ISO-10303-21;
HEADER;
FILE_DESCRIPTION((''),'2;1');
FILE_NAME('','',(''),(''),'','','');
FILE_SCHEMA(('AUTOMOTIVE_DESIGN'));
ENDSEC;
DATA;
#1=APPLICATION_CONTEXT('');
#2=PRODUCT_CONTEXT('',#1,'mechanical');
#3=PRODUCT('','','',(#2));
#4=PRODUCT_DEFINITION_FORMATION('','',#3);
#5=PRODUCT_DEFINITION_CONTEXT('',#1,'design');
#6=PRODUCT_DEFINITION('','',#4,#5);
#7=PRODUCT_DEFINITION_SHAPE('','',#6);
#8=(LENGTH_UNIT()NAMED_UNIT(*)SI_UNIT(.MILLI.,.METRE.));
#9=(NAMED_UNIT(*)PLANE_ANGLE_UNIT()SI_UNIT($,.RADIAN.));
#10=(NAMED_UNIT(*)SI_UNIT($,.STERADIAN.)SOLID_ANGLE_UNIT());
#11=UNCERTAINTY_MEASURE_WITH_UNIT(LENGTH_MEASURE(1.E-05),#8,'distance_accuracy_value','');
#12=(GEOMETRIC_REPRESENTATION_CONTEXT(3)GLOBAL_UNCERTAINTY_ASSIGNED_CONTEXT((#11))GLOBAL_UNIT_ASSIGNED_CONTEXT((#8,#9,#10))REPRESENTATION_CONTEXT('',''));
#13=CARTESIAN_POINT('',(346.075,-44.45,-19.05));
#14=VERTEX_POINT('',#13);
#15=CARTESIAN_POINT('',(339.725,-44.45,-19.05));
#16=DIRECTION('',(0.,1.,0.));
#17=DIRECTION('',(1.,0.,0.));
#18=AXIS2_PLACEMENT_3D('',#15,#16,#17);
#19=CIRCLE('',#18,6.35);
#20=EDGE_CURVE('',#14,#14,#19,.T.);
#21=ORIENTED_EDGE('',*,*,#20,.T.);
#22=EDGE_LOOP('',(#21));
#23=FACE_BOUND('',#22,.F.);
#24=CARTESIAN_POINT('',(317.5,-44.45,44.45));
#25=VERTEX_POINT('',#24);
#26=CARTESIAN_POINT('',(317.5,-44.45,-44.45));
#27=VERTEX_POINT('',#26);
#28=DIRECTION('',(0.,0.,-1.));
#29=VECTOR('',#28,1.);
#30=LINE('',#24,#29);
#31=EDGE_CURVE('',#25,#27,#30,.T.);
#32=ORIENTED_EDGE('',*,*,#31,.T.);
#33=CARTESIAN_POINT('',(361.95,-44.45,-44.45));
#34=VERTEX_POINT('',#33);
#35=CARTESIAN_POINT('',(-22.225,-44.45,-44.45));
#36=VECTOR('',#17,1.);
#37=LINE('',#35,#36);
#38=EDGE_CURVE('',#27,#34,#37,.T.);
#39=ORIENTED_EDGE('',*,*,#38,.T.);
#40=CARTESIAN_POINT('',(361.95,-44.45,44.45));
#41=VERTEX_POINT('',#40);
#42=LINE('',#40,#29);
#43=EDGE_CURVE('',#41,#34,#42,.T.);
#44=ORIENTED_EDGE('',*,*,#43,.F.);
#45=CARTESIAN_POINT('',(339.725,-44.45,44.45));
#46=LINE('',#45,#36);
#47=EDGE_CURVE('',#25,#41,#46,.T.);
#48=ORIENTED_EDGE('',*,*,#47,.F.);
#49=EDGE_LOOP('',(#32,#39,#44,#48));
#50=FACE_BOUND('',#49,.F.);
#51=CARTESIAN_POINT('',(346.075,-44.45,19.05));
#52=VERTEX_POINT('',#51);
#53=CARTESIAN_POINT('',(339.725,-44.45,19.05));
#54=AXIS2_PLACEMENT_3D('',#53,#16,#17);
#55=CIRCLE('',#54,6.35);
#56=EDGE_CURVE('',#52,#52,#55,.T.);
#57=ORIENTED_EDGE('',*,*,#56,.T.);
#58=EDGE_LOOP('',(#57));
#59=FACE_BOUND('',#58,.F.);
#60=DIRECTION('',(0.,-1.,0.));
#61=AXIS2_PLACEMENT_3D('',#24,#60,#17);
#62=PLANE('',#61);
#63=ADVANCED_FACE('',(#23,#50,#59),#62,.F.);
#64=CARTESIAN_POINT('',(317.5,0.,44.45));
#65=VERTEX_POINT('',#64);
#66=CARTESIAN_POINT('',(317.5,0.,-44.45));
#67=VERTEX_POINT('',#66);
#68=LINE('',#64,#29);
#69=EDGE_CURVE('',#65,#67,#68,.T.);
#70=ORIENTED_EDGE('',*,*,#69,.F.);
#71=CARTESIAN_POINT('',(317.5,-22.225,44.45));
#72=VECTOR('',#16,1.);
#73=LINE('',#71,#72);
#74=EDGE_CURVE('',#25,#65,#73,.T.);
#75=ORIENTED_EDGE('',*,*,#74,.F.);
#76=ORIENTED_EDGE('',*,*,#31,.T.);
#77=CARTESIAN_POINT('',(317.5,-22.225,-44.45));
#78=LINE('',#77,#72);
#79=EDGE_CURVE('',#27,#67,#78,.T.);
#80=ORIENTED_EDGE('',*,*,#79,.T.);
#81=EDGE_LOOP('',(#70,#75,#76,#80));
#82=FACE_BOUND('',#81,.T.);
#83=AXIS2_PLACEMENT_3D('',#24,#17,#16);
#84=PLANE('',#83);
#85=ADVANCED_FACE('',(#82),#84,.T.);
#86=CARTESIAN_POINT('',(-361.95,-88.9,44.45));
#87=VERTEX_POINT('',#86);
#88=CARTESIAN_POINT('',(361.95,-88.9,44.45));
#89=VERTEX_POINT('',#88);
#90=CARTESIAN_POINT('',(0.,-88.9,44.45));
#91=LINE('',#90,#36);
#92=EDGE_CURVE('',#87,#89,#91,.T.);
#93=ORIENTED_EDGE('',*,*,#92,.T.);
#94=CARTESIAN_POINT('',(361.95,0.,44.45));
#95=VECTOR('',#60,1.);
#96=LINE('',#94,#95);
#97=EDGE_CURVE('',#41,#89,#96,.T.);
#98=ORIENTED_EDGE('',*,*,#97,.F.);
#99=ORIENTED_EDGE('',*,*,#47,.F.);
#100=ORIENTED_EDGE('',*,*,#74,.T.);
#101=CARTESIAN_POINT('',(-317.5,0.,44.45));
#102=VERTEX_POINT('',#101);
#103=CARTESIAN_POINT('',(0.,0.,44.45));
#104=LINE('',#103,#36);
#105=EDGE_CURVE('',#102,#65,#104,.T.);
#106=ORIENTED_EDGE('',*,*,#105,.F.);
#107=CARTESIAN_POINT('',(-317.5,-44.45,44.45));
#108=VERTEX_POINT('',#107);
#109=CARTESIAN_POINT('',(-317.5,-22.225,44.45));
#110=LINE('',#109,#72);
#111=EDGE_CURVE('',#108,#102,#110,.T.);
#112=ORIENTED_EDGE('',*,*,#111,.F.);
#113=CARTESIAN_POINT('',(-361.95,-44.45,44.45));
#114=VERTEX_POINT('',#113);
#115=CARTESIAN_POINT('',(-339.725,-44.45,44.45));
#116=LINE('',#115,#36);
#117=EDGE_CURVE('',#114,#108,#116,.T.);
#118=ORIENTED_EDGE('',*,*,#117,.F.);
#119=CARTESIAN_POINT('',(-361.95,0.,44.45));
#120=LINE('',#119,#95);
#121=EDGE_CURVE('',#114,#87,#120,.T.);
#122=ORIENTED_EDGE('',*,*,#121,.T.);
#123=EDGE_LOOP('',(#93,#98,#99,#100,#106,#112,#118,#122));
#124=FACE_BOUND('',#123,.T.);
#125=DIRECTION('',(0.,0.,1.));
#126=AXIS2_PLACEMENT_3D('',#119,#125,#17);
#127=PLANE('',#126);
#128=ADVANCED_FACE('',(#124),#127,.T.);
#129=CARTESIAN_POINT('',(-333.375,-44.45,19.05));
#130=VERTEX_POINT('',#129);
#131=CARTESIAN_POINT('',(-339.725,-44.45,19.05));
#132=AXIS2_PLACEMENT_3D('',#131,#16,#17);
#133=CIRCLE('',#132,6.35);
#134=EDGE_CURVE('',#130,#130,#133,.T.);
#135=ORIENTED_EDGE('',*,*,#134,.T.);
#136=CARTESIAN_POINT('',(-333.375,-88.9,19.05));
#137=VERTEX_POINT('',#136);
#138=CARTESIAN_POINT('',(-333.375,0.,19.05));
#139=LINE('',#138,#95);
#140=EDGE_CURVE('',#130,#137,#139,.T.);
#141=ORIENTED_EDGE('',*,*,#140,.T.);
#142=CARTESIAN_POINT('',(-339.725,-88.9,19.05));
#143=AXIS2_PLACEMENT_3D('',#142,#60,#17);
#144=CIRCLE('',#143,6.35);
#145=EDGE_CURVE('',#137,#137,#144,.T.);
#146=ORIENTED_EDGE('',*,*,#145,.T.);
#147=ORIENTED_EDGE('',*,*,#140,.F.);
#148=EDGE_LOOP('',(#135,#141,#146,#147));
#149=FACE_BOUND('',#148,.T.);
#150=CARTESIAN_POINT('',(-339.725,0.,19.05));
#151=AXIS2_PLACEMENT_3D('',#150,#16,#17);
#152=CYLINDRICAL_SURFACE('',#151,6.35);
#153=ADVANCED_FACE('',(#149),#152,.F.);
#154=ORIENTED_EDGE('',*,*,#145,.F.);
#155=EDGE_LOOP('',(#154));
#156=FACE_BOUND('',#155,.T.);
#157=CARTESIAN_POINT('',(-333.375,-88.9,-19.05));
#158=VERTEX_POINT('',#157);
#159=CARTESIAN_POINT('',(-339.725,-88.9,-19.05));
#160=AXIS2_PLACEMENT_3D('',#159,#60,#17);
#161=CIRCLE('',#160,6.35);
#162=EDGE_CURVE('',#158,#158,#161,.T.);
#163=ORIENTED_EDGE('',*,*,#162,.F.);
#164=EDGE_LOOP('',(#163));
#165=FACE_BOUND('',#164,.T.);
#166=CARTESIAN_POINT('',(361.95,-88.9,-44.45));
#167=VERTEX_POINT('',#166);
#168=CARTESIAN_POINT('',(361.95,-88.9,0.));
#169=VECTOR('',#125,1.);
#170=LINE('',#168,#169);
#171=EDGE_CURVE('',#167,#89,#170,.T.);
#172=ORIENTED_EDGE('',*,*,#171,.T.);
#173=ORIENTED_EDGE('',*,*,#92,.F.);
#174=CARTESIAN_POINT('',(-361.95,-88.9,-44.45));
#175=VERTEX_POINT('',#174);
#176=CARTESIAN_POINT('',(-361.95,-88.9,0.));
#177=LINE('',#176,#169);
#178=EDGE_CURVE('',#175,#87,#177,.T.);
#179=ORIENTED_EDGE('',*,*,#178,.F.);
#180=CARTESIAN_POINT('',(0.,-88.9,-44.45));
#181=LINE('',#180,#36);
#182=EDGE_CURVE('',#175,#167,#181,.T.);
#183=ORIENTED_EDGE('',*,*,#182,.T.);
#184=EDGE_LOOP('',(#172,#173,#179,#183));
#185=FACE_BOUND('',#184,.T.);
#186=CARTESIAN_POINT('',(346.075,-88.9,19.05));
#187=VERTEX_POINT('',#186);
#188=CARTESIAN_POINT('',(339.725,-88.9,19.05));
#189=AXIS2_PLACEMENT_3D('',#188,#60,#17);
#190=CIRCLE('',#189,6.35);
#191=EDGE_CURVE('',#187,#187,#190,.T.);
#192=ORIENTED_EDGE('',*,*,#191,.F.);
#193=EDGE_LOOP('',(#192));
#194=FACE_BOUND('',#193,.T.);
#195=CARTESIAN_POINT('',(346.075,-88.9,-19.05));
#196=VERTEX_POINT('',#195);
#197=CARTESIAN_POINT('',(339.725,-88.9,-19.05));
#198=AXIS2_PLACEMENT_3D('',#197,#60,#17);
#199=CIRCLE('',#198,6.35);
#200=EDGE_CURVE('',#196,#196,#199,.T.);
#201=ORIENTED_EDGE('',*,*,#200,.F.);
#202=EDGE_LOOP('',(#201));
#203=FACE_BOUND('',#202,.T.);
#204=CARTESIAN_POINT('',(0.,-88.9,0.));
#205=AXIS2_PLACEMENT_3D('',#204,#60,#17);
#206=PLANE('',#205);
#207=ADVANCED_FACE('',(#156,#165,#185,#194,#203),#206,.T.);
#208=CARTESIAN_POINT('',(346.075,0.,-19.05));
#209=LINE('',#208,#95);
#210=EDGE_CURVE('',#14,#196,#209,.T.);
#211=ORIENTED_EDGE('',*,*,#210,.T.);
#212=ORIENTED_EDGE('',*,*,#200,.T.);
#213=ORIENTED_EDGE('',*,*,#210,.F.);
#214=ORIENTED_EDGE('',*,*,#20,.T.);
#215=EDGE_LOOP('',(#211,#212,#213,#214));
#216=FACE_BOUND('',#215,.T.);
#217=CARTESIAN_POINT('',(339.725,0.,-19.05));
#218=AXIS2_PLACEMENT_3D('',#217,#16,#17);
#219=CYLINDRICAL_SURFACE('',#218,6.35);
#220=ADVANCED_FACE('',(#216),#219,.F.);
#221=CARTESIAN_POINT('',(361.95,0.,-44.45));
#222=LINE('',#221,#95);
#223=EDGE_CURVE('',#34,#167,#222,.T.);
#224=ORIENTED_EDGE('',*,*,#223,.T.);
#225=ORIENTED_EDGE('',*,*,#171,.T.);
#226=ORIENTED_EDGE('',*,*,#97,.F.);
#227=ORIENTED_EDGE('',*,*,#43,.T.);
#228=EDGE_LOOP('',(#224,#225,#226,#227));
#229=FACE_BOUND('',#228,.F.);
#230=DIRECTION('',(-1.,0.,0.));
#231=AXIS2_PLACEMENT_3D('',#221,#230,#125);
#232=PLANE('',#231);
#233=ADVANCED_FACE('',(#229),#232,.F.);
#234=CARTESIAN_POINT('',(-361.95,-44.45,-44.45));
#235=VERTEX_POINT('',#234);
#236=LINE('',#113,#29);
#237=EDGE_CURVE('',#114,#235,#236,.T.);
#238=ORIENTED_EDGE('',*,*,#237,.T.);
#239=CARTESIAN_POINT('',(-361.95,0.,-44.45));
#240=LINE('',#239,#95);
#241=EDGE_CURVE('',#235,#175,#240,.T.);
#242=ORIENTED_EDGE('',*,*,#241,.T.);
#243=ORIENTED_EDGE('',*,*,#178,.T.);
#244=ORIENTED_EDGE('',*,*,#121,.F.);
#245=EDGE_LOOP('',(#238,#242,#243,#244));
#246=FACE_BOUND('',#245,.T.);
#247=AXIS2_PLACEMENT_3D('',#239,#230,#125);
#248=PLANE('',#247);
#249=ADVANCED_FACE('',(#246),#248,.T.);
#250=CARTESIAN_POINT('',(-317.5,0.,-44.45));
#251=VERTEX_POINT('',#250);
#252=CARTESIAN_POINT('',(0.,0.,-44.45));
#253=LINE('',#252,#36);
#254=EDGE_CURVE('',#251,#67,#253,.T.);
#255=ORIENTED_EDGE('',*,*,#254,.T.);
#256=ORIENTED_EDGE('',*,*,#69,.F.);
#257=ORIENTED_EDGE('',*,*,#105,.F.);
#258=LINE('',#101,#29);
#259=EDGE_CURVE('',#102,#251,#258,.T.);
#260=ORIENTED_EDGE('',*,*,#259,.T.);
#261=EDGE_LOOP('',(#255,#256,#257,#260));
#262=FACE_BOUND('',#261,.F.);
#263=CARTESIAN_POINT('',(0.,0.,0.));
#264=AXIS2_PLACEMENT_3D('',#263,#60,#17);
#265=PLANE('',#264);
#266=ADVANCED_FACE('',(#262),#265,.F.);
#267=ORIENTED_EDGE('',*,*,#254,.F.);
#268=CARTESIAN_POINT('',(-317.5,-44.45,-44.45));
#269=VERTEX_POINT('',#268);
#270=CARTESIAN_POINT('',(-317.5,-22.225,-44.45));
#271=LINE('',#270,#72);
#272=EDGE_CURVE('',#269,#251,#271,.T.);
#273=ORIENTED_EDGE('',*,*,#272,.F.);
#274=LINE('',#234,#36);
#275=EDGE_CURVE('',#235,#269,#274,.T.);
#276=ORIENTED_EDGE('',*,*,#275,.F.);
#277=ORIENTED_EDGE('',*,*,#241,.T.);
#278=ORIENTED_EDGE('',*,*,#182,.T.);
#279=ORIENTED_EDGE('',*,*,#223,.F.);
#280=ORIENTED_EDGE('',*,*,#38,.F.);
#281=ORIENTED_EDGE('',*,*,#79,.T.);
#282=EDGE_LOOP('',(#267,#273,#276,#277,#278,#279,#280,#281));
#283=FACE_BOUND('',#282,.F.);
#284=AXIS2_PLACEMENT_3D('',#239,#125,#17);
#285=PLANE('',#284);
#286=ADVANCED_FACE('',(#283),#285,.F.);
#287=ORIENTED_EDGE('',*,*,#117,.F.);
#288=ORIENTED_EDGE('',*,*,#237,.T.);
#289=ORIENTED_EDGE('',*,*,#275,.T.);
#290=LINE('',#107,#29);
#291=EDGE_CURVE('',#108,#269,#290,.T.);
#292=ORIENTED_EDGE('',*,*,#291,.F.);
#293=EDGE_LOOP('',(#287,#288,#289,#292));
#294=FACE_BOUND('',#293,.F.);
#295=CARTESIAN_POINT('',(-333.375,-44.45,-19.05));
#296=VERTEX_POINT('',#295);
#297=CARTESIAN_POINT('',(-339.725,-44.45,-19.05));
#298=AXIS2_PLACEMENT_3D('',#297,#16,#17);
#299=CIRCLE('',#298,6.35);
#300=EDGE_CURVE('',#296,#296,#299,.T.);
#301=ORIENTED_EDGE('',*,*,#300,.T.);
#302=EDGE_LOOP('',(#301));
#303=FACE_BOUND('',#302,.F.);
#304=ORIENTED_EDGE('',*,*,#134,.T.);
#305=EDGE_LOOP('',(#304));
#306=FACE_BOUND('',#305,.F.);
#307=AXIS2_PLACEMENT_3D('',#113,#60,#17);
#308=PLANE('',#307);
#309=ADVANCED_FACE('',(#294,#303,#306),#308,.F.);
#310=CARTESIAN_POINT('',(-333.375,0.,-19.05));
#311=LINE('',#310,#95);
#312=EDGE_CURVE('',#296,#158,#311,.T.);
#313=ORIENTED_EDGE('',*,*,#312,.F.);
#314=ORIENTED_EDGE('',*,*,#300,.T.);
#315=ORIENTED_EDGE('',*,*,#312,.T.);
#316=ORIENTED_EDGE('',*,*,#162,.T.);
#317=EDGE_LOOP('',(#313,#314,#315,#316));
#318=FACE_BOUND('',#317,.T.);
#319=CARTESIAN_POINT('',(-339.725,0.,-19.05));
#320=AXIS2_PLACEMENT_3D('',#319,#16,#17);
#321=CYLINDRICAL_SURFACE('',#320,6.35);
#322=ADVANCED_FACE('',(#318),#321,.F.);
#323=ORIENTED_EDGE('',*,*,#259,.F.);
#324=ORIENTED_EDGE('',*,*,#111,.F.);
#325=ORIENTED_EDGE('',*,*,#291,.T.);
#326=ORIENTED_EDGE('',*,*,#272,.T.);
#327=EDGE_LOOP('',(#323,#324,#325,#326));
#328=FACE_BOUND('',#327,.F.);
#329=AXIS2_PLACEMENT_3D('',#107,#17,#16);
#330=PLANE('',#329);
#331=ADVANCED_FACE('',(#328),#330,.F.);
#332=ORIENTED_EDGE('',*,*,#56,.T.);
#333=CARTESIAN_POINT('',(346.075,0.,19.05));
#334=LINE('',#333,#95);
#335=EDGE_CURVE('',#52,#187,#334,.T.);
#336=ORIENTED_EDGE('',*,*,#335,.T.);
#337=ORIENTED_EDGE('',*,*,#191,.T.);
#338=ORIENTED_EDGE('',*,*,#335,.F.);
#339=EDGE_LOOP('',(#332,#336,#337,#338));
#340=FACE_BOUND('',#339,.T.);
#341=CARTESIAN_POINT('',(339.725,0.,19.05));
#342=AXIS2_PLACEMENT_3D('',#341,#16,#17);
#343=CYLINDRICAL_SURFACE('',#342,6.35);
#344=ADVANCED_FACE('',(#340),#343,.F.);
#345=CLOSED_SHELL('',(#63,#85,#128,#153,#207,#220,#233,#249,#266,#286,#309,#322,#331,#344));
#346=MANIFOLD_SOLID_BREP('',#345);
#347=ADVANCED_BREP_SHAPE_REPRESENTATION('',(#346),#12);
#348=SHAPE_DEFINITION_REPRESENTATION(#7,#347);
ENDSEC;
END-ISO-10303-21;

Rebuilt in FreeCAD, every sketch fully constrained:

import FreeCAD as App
import Part
import Sketcher
Q = App.Units.Quantity


def add_polygon(sketch, points):
    """Adds a closed chain of lines whose ends are joined by coincident constraints."""
    first, n = sketch.GeometryCount, len(points)
    for a, b in zip(points, points[1:] + points[:1]):
        sketch.addGeometry(Part.LineSegment(App.Vector(*a, 0), App.Vector(*b, 0)), False)
    for i in range(n):
        sketch.addConstraint(Sketcher.Constraint("Coincident", first + i, 2, first + (i + 1) % n, 1))

doc = App.newDocument("Part")
body = doc.addObject("PartDesign::Body", "Body")

# Sketch on XZ plane
sketch1 = body.newObject("Sketcher::SketchObject", "Sketch")
sketch1.AttachmentSupport = (doc.getObject("XZ_Plane"), [""])
sketch1.MapMode = "FlatFace"
add_polygon(sketch1, [(-362, 44), (-362, -44), (362, -44), (362, 44)])  # lines 0-3
sketch1.addGeometry(Part.Circle(App.Vector(-340, -19, 0), App.Vector(0, 0, 1), 6), False)  # 4
sketch1.addGeometry(Part.Circle(App.Vector(340, -19, 0), App.Vector(0, 0, 1), 6), False)  # 5
sketch1.addGeometry(Part.Circle(App.Vector(-340, 19, 0), App.Vector(0, 0, 1), 6), False)  # 6
sketch1.addGeometry(Part.Circle(App.Vector(340, 19, 0), App.Vector(0, 0, 1), 6), False)  # 7
sketch1.addConstraint(Sketcher.Constraint("Vertical", 0))
sketch1.addConstraint(Sketcher.Constraint("Horizontal", 1))
sketch1.addConstraint(Sketcher.Constraint("Vertical", 2))
sketch1.addConstraint(Sketcher.Constraint("Horizontal", 3))
sketch1.addConstraint(Sketcher.Constraint("Equal", 4, 5))
sketch1.addConstraint(Sketcher.Constraint("Equal", 5, 6))
sketch1.addConstraint(Sketcher.Constraint("Equal", 6, 7))
sketch1.addConstraint(Sketcher.Constraint("Symmetric", 5, 3, 6, 3, -1, 1))
sketch1.addConstraint(Sketcher.Constraint("Symmetric", 4, 3, 7, 3, -1, 1))
sketch1.addConstraint(Sketcher.Constraint("Symmetric", 0, 2, 2, 2, -1, 1))
sketch1.addConstraint(Sketcher.Constraint("Symmetric", 4, 3, 5, 3, -2))
sketch1.addConstraint(Sketcher.Constraint("Diameter", 4, Q("0.5 in")))
sketch1.addConstraint(Sketcher.Constraint("DistanceX", 1, 1, 1, 2, Q("28.5 in")))
sketch1.addConstraint(Sketcher.Constraint("DistanceY", 0, 2, 0, 1, Q("3.5 in")))
sketch1.addConstraint(Sketcher.Constraint("DistanceY", 0, 2, 4, 3, Q("1 in")))
sketch1.addConstraint(Sketcher.Constraint("DistanceX", 4, 3, 5, 3, Q("26.75 in")))
pad1 = body.newObject("PartDesign::Pad", "Pad")
pad1.Profile = sketch1
pad1.Length = Q("3.5 in")

# Sketch on XY plane
sketch2 = body.newObject("Sketcher::SketchObject", "Sketch001")
sketch2.AttachmentSupport = (doc.getObject("XY_Plane"), [""])
sketch2.MapMode = "FlatFace"
sketch2.AttachmentOffset = App.Placement(App.Vector(0, 0, 1.75 * 25.4), App.Rotation())
add_polygon(sketch2, [(-362, 0), (-362, -44), (-318, -44), (-318, 0)])  # lines 0-3
add_polygon(sketch2, [(318, 0), (318, -44), (362, -44), (362, 0)])  # lines 4-7
sketch2.addConstraint(Sketcher.Constraint("Vertical", 0))
sketch2.addConstraint(Sketcher.Constraint("Horizontal", 1))
sketch2.addConstraint(Sketcher.Constraint("Vertical", 2))
sketch2.addConstraint(Sketcher.Constraint("Horizontal", 3))
sketch2.addConstraint(Sketcher.Constraint("Vertical", 4))
sketch2.addConstraint(Sketcher.Constraint("Horizontal", 5))
sketch2.addConstraint(Sketcher.Constraint("Vertical", 6))
sketch2.addConstraint(Sketcher.Constraint("Horizontal", 7))
sketch2.addConstraint(Sketcher.Constraint("Symmetric", 3, 2, 6, 2, -1, 1))
sketch2.addConstraint(Sketcher.Constraint("Symmetric", 1, 2, 4, 2, -2))
sketch2.addConstraint(Sketcher.Constraint("PointOnObject", 2, 2, -1))
sketch2.addConstraint(Sketcher.Constraint("Equal", 7, 0))
sketch2.addConstraint(Sketcher.Constraint("DistanceX", 1, 2, 4, 2, Q("25 in")))
sketch2.addConstraint(Sketcher.Constraint("DistanceX", 1, 1, 1, 2, Q("1.75 in")))
pocket1 = body.newObject("PartDesign::Pocket", "Pocket")
pocket1.Profile = sketch2
pocket1.Length = Q("4 in")

doc.recompute()
